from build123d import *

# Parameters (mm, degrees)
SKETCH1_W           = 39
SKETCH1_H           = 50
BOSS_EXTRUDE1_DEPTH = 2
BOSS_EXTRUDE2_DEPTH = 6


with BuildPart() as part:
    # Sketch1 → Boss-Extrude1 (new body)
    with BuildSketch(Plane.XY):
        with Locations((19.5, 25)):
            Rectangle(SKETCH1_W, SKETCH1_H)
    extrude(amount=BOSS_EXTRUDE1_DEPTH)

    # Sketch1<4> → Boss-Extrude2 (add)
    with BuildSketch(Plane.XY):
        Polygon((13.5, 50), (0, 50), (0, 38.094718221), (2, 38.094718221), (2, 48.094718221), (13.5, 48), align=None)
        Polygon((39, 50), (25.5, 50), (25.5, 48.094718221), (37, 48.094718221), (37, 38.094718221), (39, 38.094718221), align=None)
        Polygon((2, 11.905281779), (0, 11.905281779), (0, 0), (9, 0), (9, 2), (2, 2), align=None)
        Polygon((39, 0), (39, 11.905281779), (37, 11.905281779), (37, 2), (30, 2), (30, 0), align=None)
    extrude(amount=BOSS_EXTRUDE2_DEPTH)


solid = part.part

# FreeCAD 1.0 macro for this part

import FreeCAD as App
import Part
import Sketcher

V = App.Vector
Q = App.Units.Quantity

doc = App.newDocument("Part")
body = doc.addObject("PartDesign::Body", "Body")

# Sketch on XY plane
sketch1 = body.newObject("Sketcher::SketchObject", "Sketch")
sketch1.AttachmentSupport = (doc.getObject("XY_Plane"), [""])
sketch1.MapMode = "FlatFace"
sketch1.addGeometry([
    Part.LineSegment(V(0, 50, 0), V(0, 0, 0)),
    Part.LineSegment(V(0, 0, 0), V(39, 0, 0)),
    Part.LineSegment(V(39, 0, 0), V(39, 50, 0)),
    Part.LineSegment(V(39, 50, 0), V(0, 50, 0)),
], False)
sketch1.addConstraint([
    Sketcher.Constraint("Coincident", 0, 2, 1, 1),
    Sketcher.Constraint("Coincident", 1, 2, 2, 1),
    Sketcher.Constraint("Coincident", 2, 2, 3, 1),
    Sketcher.Constraint("Coincident", 3, 2, 0, 1),
    Sketcher.Constraint("Vertical", 0),
    Sketcher.Constraint("Horizontal", 1),
    Sketcher.Constraint("Vertical", 2),
    Sketcher.Constraint("Horizontal", 3),
    Sketcher.Constraint("Coincident", 0, 2, -1, 1),
    Sketcher.Constraint("DistanceX", 1, 1, 1, 2, Q("39 mm")),
    Sketcher.Constraint("DistanceY", 0, 2, 0, 1, Q("50 mm")),
])
pad1 = body.newObject("PartDesign::Pad", "Pad")
pad1.Profile = sketch1
pad1.Length = 2

# Sketch on XY plane
sketch2 = body.newObject("Sketcher::SketchObject", "Sketch001")
sketch2.AttachmentSupport = (doc.getObject("XY_Plane"), [""])
sketch2.MapMode = "FlatFace"
sketch2.addGeometry([
    Part.LineSegment(V(13.5, 50, 0), V(0, 50, 0)),  # 0
    Part.LineSegment(V(0, 50, 0), V(0, 38.1, 0)),  # 1
    Part.LineSegment(V(0, 38.1, 0), V(2, 38.1, 0)),  # 2
    Part.LineSegment(V(2, 38.1, 0), V(2, 48.1, 0)),  # 3
    Part.LineSegment(V(2, 48.1, 0), V(13.5, 48, 0)),  # 4
    Part.LineSegment(V(13.5, 48, 0), V(13.5, 50, 0)),  # 5
    Part.LineSegment(V(39, 50, 0), V(25.5, 50, 0)),  # 6
    Part.LineSegment(V(25.5, 50, 0), V(25.5, 48.1, 0)),  # 7
    Part.LineSegment(V(25.5, 48.1, 0), V(37, 48.1, 0)),  # 8
    Part.LineSegment(V(37, 48.1, 0), V(37, 38.1, 0)),  # 9
    Part.LineSegment(V(37, 38.1, 0), V(39, 38.1, 0)),  # 10
    Part.LineSegment(V(39, 38.1, 0), V(39, 50, 0)),  # 11
    Part.LineSegment(V(2, 11.9, 0), V(0, 11.9, 0)),  # 12
    Part.LineSegment(V(0, 11.9, 0), V(0, 0, 0)),  # 13
    Part.LineSegment(V(0, 0, 0), V(9, 0, 0)),  # 14
    Part.LineSegment(V(9, 0, 0), V(9, 2, 0)),  # 15
    Part.LineSegment(V(9, 2, 0), V(2, 2, 0)),  # 16
    Part.LineSegment(V(2, 2, 0), V(2, 11.9, 0)),  # 17
    Part.LineSegment(V(39, 0, 0), V(39, 11.9, 0)),  # 18
    Part.LineSegment(V(39, 11.9, 0), V(37, 11.9, 0)),  # 19
    Part.LineSegment(V(37, 11.9, 0), V(37, 2, 0)),  # 20
    Part.LineSegment(V(37, 2, 0), V(30, 2, 0)),  # 21
    Part.LineSegment(V(30, 2, 0), V(30, 0, 0)),  # 22
    Part.LineSegment(V(30, 0, 0), V(39, 0, 0)),  # 23
], False)
sketch2.addConstraint([
    Sketcher.Constraint("Coincident", 0, 2, 1, 1),
    Sketcher.Constraint("Coincident", 1, 2, 2, 1),
    Sketcher.Constraint("Coincident", 2, 2, 3, 1),
    Sketcher.Constraint("Coincident", 3, 2, 4, 1),
    Sketcher.Constraint("Coincident", 4, 2, 5, 1),
    Sketcher.Constraint("Coincident", 5, 2, 0, 1),
    Sketcher.Constraint("Coincident", 6, 2, 7, 1),
    Sketcher.Constraint("Coincident", 7, 2, 8, 1),
    Sketcher.Constraint("Coincident", 8, 2, 9, 1),
    Sketcher.Constraint("Coincident", 9, 2, 10, 1),
    Sketcher.Constraint("Coincident", 10, 2, 11, 1),
    Sketcher.Constraint("Coincident", 11, 2, 6, 1),
    Sketcher.Constraint("Coincident", 12, 2, 13, 1),
    Sketcher.Constraint("Coincident", 13, 2, 14, 1),
    Sketcher.Constraint("Coincident", 14, 2, 15, 1),
    Sketcher.Constraint("Coincident", 15, 2, 16, 1),
    Sketcher.Constraint("Coincident", 16, 2, 17, 1),
    Sketcher.Constraint("Coincident", 17, 2, 12, 1),
    Sketcher.Constraint("Coincident", 18, 2, 19, 1),
    Sketcher.Constraint("Coincident", 19, 2, 20, 1),
    Sketcher.Constraint("Coincident", 20, 2, 21, 1),
    Sketcher.Constraint("Coincident", 21, 2, 22, 1),
    Sketcher.Constraint("Coincident", 22, 2, 23, 1),
    Sketcher.Constraint("Coincident", 23, 2, 18, 1),
    Sketcher.Constraint("Horizontal", 0),
    Sketcher.Constraint("Vertical", 1),
    Sketcher.Constraint("Horizontal", 2),
    Sketcher.Constraint("Vertical", 3),
    Sketcher.Constraint("Vertical", 5),
    Sketcher.Constraint("Horizontal", 6),
    Sketcher.Constraint("Vertical", 7),
    Sketcher.Constraint("Horizontal", 8),
    Sketcher.Constraint("Vertical", 9),
    Sketcher.Constraint("Horizontal", 10),
    Sketcher.Constraint("Vertical", 11),
    Sketcher.Constraint("Horizontal", 12),
    Sketcher.Constraint("Vertical", 13),
    Sketcher.Constraint("Horizontal", 14),
    Sketcher.Constraint("Vertical", 15),
    Sketcher.Constraint("Horizontal", 16),
    Sketcher.Constraint("Vertical", 17),
    Sketcher.Constraint("Vertical", 18),
    Sketcher.Constraint("Horizontal", 19),
    Sketcher.Constraint("Vertical", 20),
    Sketcher.Constraint("Horizontal", 21),
    Sketcher.Constraint("Vertical", 22),
    Sketcher.Constraint("Horizontal", 23),
    Sketcher.Constraint("Coincident", 13, 2, -1, 1),
    Sketcher.Constraint("PointOnObject", 0, 2, -2),
    Sketcher.Constraint("PointOnObject", 22, 2, -1),
    Sketcher.Constraint("Horizontal", 5, 2, 6, 2),
    Sketcher.Constraint("Horizontal", 3, 2, 7, 2),
    Sketcher.Constraint("Horizontal", 2, 2, 9, 2),
    Sketcher.Constraint("Horizontal", 17, 2, 18, 2),
    Sketcher.Constraint("Horizontal", 16, 2, 20, 2),
    Sketcher.Constraint("Vertical", 3, 2, 16, 2),
    Sketcher.Constraint("Vertical", 11, 2, 18, 2),
    Sketcher.Constraint("Vertical", 9, 2, 19, 2),
    Sketcher.Constraint("Equal", 0, 6),
    Sketcher.Constraint("Equal", 2, 10),
    Sketcher.Constraint("Equal", 16, 21),
    Sketcher.Constraint("Equal", 19, 5),
    Sketcher.Constraint("Equal", 11, 13),
    Sketcher.Constraint("Equal", 5, 15),
    Sketcher.Constraint("DistanceX", 2, 1, 2, 2, Q("2 mm")),
    Sketcher.Constraint("DistanceX", 14, 1, 14, 2, Q("9 mm")),
    Sketcher.Constraint("DistanceY", 3, 1, 3, 2, Q("10 mm")),
    Sketcher.Constraint("DistanceX", 0, 2, 0, 1, Q("13.5 mm")),
    Sketcher.Constraint("DistanceY", -1, 1, 0, 2, Q("50 mm")),
    Sketcher.Constraint("DistanceX", -1, 1, 8, 2, Q("37 mm")),
    Sketcher.Constraint("DistanceY", 1, 2, 1, 1, Q("11.905282 mm")),
])
pad2 = body.newObject("PartDesign::Pad", "Pad001")
pad2.Profile = sketch2
pad2.Length = 6

doc.recompute()
